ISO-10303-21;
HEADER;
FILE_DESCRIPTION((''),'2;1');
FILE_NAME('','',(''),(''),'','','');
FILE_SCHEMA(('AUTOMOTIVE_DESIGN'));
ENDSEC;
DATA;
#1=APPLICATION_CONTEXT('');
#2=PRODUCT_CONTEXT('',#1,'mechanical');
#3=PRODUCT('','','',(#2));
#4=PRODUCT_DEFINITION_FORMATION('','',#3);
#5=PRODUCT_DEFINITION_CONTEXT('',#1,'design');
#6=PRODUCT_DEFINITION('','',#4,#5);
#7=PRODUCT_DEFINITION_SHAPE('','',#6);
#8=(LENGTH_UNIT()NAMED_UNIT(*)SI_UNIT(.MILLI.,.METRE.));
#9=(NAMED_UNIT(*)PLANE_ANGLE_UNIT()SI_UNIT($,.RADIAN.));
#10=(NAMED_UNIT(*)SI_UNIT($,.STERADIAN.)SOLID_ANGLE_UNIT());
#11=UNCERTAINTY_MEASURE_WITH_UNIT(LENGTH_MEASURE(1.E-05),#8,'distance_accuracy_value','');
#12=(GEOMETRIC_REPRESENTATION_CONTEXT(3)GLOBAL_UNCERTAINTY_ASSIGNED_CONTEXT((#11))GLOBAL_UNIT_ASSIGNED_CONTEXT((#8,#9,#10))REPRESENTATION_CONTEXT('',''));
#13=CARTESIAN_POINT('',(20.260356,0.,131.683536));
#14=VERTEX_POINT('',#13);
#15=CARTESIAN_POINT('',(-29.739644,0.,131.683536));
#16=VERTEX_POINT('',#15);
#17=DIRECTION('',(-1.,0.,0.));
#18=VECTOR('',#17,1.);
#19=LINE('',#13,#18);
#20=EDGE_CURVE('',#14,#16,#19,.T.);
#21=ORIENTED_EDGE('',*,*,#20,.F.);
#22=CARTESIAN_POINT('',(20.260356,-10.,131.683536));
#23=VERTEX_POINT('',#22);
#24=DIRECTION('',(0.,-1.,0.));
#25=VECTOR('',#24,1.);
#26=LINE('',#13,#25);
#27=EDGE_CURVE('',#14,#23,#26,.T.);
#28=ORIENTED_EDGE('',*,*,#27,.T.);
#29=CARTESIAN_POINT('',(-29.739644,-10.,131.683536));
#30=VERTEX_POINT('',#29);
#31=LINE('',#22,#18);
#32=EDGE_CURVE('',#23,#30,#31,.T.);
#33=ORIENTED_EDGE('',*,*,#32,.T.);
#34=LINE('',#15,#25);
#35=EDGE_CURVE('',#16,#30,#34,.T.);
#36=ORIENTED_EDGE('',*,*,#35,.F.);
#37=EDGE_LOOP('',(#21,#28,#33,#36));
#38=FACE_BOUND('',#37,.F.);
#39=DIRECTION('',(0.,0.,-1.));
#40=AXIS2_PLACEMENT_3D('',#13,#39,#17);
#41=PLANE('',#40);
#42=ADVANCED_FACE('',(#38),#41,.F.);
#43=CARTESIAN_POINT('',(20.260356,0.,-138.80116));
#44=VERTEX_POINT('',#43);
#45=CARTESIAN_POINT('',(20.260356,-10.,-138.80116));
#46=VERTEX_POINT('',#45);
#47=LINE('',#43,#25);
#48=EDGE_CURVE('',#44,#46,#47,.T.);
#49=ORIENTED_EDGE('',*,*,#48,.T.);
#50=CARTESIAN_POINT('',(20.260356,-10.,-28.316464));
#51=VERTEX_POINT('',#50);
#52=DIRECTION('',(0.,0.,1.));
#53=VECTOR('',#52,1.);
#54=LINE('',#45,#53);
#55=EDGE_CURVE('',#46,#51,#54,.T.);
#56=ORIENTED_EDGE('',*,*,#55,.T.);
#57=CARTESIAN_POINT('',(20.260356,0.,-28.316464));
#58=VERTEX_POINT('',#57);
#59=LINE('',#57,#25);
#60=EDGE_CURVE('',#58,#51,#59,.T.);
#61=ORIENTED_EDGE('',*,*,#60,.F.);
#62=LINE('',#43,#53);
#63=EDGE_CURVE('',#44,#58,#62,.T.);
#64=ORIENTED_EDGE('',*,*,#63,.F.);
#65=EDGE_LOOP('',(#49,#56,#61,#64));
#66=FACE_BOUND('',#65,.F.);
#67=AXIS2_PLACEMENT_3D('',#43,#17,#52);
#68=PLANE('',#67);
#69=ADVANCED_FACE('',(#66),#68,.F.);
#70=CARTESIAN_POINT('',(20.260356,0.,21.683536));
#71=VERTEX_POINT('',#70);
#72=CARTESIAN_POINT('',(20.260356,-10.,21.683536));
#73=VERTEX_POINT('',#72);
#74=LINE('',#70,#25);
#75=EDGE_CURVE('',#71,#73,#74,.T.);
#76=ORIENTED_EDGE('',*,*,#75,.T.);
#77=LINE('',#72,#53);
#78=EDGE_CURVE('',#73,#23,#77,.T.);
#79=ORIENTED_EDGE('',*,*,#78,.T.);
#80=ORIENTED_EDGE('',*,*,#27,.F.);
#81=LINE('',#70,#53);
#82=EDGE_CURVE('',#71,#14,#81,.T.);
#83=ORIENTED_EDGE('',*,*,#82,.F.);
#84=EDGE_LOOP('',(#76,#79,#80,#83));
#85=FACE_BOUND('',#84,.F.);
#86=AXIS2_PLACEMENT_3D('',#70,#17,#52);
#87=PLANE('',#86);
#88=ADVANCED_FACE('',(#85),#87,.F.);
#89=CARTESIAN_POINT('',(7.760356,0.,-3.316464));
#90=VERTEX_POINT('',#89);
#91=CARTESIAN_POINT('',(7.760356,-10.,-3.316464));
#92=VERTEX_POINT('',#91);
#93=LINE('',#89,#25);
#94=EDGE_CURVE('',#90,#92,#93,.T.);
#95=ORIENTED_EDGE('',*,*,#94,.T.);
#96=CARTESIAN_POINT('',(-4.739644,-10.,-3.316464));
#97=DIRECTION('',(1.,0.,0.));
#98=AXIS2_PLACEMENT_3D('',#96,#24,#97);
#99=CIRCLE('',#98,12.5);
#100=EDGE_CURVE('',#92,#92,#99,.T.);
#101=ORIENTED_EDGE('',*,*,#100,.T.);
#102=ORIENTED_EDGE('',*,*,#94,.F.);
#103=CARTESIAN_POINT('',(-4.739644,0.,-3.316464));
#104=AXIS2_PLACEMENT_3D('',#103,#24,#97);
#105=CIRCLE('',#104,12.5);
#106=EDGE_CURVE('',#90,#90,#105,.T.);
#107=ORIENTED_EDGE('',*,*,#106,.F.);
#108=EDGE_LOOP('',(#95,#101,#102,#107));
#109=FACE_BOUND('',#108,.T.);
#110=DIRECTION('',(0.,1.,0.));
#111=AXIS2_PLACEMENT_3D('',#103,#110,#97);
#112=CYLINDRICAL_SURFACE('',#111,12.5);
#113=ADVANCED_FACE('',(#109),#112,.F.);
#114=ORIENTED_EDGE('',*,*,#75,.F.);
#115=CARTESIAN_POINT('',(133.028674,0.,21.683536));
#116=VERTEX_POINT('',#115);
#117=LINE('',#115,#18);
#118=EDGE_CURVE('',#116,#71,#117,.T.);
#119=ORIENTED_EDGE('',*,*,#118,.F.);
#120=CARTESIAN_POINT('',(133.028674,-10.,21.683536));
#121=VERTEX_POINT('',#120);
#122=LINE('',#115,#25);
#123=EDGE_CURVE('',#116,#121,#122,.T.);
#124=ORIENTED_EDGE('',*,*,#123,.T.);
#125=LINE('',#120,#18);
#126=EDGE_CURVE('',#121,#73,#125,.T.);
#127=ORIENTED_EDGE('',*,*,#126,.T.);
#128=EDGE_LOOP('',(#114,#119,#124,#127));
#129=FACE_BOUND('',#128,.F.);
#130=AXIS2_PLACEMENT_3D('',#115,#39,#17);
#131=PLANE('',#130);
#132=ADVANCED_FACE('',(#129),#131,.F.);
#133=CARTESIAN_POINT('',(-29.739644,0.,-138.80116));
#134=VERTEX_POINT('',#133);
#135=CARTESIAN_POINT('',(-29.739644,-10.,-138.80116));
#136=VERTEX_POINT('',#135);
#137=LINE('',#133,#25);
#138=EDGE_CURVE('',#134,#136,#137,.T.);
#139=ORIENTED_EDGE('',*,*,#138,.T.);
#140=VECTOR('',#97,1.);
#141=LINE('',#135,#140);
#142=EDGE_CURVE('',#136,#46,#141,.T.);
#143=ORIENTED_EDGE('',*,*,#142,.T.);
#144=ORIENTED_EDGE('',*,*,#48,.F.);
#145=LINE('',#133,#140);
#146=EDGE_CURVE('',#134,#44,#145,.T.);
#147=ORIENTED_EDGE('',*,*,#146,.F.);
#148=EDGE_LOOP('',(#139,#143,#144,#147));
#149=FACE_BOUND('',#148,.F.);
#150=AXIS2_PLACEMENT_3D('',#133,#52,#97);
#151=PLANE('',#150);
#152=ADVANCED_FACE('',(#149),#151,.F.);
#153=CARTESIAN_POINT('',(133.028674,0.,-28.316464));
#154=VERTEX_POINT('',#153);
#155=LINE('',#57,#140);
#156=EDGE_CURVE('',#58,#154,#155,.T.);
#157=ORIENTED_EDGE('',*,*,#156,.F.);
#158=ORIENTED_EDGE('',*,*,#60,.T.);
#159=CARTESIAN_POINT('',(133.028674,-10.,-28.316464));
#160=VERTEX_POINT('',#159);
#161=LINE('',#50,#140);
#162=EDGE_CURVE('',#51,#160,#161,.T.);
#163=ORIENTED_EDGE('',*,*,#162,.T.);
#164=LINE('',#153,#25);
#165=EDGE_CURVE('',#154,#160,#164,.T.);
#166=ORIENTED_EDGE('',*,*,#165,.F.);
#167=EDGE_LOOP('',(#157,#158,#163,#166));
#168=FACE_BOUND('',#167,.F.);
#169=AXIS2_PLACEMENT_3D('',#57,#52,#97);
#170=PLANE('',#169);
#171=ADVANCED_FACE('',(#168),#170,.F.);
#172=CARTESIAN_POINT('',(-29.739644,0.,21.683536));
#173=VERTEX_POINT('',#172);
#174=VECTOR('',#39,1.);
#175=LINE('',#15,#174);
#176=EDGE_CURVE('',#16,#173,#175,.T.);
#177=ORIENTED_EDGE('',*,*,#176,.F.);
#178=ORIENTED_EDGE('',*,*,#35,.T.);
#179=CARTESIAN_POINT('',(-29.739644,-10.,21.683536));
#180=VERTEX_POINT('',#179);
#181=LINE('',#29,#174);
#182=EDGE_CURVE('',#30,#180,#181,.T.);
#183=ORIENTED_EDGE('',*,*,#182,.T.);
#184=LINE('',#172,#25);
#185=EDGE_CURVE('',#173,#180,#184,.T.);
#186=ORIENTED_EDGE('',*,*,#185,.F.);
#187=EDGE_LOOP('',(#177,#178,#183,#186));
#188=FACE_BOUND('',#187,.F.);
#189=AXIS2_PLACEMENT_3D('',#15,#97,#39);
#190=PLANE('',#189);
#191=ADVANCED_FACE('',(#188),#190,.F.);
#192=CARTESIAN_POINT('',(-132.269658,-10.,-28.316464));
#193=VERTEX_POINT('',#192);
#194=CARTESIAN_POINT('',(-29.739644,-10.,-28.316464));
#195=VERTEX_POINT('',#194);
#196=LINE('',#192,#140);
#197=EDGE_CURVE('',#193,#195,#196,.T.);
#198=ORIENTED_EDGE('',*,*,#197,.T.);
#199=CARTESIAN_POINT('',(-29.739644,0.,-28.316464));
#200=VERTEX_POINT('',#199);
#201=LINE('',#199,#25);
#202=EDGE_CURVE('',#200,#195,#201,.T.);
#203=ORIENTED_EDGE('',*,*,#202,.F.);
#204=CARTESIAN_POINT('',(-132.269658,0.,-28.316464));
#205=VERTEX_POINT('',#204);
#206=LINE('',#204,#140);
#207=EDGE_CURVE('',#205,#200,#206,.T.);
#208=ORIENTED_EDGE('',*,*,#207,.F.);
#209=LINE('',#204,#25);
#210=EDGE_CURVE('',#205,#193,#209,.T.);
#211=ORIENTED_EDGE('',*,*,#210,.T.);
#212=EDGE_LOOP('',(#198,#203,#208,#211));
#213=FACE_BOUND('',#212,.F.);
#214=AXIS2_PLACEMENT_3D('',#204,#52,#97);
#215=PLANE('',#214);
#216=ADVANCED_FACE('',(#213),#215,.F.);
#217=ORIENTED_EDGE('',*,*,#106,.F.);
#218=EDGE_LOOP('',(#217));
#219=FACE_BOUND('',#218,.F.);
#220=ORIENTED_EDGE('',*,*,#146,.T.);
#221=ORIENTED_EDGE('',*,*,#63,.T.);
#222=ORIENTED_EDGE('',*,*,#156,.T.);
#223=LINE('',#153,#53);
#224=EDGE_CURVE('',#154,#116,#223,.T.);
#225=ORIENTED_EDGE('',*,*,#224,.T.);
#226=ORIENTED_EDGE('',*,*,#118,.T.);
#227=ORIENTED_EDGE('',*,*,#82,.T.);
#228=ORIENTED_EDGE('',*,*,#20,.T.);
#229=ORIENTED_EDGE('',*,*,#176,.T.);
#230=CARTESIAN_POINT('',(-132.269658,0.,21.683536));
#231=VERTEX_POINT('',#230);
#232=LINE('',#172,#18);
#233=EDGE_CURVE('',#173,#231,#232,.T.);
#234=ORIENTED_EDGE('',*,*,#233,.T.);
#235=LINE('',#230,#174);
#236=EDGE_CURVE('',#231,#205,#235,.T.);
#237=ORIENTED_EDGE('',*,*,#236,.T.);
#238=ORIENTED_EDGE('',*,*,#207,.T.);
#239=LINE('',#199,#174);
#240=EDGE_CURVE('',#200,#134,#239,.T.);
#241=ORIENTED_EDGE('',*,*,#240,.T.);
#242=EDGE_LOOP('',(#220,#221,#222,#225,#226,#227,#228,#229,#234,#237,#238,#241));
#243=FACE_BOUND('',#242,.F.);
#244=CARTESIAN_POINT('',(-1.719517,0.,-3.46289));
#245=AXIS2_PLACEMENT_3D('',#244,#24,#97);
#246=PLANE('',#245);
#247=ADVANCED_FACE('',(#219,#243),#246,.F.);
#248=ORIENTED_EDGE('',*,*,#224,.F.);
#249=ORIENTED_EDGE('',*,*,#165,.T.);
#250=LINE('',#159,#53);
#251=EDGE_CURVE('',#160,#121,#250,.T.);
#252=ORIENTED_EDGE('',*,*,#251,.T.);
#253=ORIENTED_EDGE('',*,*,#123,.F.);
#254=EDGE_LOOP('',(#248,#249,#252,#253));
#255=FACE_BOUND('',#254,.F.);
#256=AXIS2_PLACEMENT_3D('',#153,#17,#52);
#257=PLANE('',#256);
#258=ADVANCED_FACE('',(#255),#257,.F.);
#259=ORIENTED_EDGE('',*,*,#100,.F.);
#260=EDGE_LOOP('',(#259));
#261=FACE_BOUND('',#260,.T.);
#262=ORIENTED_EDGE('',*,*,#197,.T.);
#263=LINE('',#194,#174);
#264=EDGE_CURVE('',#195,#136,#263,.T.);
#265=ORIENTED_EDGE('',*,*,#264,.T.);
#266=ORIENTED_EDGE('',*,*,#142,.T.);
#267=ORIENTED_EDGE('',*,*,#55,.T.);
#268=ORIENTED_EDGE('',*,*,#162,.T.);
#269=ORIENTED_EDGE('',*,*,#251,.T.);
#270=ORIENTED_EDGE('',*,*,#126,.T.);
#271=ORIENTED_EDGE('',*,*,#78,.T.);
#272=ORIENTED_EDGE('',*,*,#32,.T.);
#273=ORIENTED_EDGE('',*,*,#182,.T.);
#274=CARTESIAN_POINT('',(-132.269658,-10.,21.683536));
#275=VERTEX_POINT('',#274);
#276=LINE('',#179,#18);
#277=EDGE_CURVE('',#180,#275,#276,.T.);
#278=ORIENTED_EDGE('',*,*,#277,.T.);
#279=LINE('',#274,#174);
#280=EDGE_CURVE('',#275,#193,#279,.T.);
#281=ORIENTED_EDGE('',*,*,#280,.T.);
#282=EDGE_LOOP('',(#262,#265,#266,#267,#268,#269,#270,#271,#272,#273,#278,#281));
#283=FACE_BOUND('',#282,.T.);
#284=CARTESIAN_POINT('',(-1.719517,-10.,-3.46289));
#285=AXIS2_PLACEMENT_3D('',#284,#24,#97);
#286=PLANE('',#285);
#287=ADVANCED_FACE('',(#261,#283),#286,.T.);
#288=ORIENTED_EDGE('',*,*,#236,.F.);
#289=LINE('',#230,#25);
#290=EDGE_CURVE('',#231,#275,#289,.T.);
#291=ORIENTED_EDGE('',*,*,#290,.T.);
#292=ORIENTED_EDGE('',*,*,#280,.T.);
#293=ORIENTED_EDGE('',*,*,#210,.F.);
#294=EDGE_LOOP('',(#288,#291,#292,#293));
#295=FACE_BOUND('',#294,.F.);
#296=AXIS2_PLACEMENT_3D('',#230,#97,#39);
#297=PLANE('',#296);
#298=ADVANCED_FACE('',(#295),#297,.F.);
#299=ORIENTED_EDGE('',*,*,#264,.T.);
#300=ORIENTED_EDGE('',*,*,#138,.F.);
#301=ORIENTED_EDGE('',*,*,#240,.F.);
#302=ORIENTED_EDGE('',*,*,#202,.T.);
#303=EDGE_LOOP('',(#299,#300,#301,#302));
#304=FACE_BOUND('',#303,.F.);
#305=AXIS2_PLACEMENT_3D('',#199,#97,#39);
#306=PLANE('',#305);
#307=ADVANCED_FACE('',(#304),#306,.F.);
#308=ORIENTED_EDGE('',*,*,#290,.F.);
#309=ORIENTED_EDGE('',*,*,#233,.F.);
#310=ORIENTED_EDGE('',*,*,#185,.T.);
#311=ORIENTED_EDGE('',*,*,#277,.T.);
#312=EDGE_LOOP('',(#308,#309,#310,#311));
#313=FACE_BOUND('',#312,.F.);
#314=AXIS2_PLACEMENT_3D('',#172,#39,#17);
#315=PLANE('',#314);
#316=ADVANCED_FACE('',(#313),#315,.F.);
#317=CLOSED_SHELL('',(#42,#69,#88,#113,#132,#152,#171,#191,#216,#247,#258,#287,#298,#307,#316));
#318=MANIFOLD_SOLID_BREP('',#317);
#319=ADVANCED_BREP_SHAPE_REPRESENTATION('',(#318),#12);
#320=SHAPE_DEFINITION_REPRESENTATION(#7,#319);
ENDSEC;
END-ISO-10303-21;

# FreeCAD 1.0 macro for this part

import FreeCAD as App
import Part
import Sketcher
Q = App.Units.Quantity

doc = App.newDocument("Part")
body = doc.addObject("PartDesign::Body", "Body")

# Sketch on XZ plane
sketch1 = doc.addObject("Sketcher::SketchObject", "Sketch")
body.addObject(sketch1)
sketch1.AttachmentSupport = (doc.XZ_Plane, [""])
sketch1.MapMode = "FlatFace"
sketch1.addGeometry([
    Part.LineSegment(App.Vector(20, 132, 0), App.Vector(-30, 132, 0)),  # 0
    Part.LineSegment(App.Vector(-30, 132, 0), App.Vector(-30, 22, 0)),  # 1
    Part.LineSegment(App.Vector(-30, 22, 0), App.Vector(-132, 22, 0)),  # 2
    Part.LineSegment(App.Vector(-132, 22, 0), App.Vector(-132, -28, 0)),  # 3
    Part.LineSegment(App.Vector(-132, -28, 0), App.Vector(-30, -28, 0)),  # 4
    Part.LineSegment(App.Vector(-30, -28, 0), App.Vector(-30, -139, 0)),  # 5
    Part.LineSegment(App.Vector(-30, -139, 0), App.Vector(20, -139, 0)),  # 6
    Part.LineSegment(App.Vector(20, -139, 0), App.Vector(20, -28, 0)),  # 7
    Part.LineSegment(App.Vector(20, -28, 0), App.Vector(133, -28, 0)),  # 8
    Part.LineSegment(App.Vector(133, -28, 0), App.Vector(133, 22, 0)),  # 9
    Part.LineSegment(App.Vector(133, 22, 0), App.Vector(20, 22, 0)),  # 10
    Part.LineSegment(App.Vector(20, 22, 0), App.Vector(20, 132, 0)),  # 11
    Part.Circle(App.Vector(-5, -3, 0), App.Vector(0, 0, 1), 12),  # 12
], False)
sketch1.addConstraint([
    Sketcher.Constraint("Coincident", 0, 2, 1, 1),
    Sketcher.Constraint("Coincident", 1, 2, 2, 1),
    Sketcher.Constraint("Coincident", 2, 2, 3, 1),
    Sketcher.Constraint("Coincident", 3, 2, 4, 1),
    Sketcher.Constraint("Coincident", 4, 2, 5, 1),
    Sketcher.Constraint("Coincident", 5, 2, 6, 1),
    Sketcher.Constraint("Coincident", 6, 2, 7, 1),
    Sketcher.Constraint("Coincident", 7, 2, 8, 1),
    Sketcher.Constraint("Coincident", 8, 2, 9, 1),
    Sketcher.Constraint("Coincident", 9, 2, 10, 1),
    Sketcher.Constraint("Coincident", 10, 2, 11, 1),
    Sketcher.Constraint("Coincident", 11, 2, 0, 1),
    Sketcher.Constraint("Horizontal", 0),
    Sketcher.Constraint("Vertical", 1),
    Sketcher.Constraint("Horizontal", 2),
    Sketcher.Constraint("Vertical", 3),
    Sketcher.Constraint("Horizontal", 4),
    Sketcher.Constraint("Vertical", 5),
    Sketcher.Constraint("Horizontal", 6),
    Sketcher.Constraint("Vertical", 7),
    Sketcher.Constraint("Horizontal", 8),
    Sketcher.Constraint("Vertical", 9),
    Sketcher.Constraint("Horizontal", 10),
    Sketcher.Constraint("Vertical", 11),
    Sketcher.Constraint("Horizontal", 4, 2, 7, 2),
    Sketcher.Constraint("Horizontal", 2, 2, 9, 2),
    Sketcher.Constraint("Vertical", 1, 2, 4, 2),
    Sketcher.Constraint("Vertical", 7, 2, 10, 2),
    Sketcher.Constraint("Equal", 6, 3),
    Sketcher.Constraint("Diameter", 12, Q("25 mm")),
    Sketcher.Constraint("DistanceX", 0, 2, 0, 1, Q("50 mm")),
    Sketcher.Constraint("DistanceY", 1, 2, 1, 1, Q("110 mm")),
    Sketcher.Constraint("DistanceX", 0, 2, 12, 3, Q("25 mm")),
    Sketcher.Constraint("DistanceY", 12, 3, 0, 2, Q("135 mm")),
    Sketcher.Constraint("DistanceX", 2, 2, 2, 1, Q("102.530014 mm")),
    Sketcher.Constraint("DistanceX", 8, 1, 8, 2, Q("112.768318 mm")),
    Sketcher.Constraint("DistanceY", 5, 2, 5, 1, Q("110.484696 mm")),
    Sketcher.Constraint("DistanceX", 2, 2, -1, 1, Q("132.269658 mm")),
    Sketcher.Constraint("DistanceY", 5, 2, -1, 1, Q("138.80116 mm")),
])
pad1 = doc.addObject("PartDesign::Pad", "Pad")
body.addObject(pad1)
pad1.Profile = sketch1
pad1.Length = 10

doc.recompute()
